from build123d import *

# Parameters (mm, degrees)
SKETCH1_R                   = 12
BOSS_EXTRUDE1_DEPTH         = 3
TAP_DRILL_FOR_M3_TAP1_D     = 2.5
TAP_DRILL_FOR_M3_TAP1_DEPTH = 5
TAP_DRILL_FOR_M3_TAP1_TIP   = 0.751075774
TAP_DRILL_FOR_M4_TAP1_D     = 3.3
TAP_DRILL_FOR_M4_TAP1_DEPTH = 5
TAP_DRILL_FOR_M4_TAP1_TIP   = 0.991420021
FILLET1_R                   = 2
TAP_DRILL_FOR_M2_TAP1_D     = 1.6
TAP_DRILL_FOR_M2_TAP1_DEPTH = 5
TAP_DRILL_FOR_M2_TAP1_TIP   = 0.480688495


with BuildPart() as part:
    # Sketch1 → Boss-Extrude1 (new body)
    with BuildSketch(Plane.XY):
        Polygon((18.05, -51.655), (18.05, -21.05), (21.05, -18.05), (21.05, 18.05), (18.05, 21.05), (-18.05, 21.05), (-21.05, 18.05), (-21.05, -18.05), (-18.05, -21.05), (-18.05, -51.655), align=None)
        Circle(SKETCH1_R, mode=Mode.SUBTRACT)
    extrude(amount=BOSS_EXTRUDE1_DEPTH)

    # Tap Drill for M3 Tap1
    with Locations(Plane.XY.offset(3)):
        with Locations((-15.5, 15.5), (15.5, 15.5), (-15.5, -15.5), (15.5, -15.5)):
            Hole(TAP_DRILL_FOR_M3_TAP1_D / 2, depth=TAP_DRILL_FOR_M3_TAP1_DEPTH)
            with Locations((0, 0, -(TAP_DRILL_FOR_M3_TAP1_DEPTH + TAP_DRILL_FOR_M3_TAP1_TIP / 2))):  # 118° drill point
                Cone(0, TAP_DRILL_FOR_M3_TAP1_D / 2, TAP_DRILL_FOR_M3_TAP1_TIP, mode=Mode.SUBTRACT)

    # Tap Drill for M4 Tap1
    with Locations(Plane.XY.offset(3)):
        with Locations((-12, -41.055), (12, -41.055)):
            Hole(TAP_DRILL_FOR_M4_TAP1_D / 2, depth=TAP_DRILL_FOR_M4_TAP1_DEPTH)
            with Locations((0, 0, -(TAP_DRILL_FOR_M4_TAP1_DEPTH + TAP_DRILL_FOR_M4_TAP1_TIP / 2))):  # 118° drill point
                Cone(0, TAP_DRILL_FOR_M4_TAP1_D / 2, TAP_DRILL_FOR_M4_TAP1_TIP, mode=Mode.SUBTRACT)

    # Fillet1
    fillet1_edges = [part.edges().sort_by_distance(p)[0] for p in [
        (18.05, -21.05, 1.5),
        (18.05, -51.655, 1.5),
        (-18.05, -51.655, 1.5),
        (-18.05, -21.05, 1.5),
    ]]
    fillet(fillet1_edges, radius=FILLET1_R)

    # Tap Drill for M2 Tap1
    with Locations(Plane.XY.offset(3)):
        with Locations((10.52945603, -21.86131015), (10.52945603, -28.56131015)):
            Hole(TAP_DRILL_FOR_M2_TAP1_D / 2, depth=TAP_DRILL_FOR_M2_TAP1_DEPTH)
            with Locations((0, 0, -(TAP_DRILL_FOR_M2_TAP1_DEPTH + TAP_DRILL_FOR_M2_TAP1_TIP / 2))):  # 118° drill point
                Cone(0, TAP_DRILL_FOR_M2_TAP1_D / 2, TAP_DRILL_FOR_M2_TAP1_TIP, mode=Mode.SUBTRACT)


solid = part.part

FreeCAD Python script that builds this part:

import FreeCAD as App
import Part
import Sketcher

V = App.Vector


def edges_at(feature, points):
    """Names of the edges that pass closest to the given points."""
    edges = feature.Shape.Edges
    near = lambda p: min(range(len(edges)), key=lambda i: edges[i].distToShape(Part.Vertex(*p))[0])
    return sorted({f"Edge{near(p) + 1}" for p in points})


def add_polygon(sketch, points):
    """Adds a closed chain of lines whose ends are joined by coincident constraints."""
    first, n = sketch.GeometryCount, len(points)
    for a, b in zip(points, points[1:] + points[:1]):
        sketch.addGeometry(Part.LineSegment(App.Vector(*a, 0), App.Vector(*b, 0)), False)
    for i in range(n):
        sketch.addConstraint(Sketcher.Constraint("Coincident", first + i, 2, first + (i + 1) % n, 1))

doc = App.newDocument("Part")
body = doc.addObject("PartDesign::Body", "Body")

# Sketch on XY plane
sketch1 = body.newObject("Sketcher::SketchObject", "Sketch")
sketch1.AttachmentSupport = (doc.getObject("XY_Plane"), [""])
sketch1.MapMode = "FlatFace"
add_polygon(sketch1, [(18.1, -51.7), (18.1, -21.1), (21.1, -18.1), (21.1, 18.1), (18.1, 21.1), (-18.1, 21.1), (-21.1, 18.1), (-21.1, -18.1), (-18.1, -21.1), (-18.1, -51.7)])  # lines 0-9
sketch1.addGeometry(Part.Circle(V(0, 0, 0), V(0, 0, 1), 12), False)  # 10
sketch1.addConstraint(Sketcher.Constraint("Vertical", 0))
sketch1.addConstraint(Sketcher.Constraint("Vertical", 2))
sketch1.addConstraint(Sketcher.Constraint("Horizontal", 4))
sketch1.addConstraint(Sketcher.Constraint("Vertical", 6))
sketch1.addConstraint(Sketcher.Constraint("Vertical", 8))
sketch1.addConstraint(Sketcher.Constraint("Horizontal", 9))
sketch1.addConstraint(Sketcher.Constraint("Coincident", 10, 3, -1, 1))
sketch1.addConstraint(Sketcher.Constraint("Symmetric", 0, 2, 4, 2, -1, 1))
sketch1.addConstraint(Sketcher.Constraint("Symmetric", 1, 2, 5, 2, -1, 1))
sketch1.addConstraint(Sketcher.Constraint("Symmetric", 3, 2, 7, 2, -1, 1))
sketch1.addConstraint(Sketcher.Constraint("Perpendicular", 1, 3))
sketch1.addConstraint(Sketcher.Constraint("Perpendicular", 5, 7))
sketch1.addConstraint(Sketcher.Constraint("Horizontal", 2, 2, 5, 2))
sketch1.addConstraint(Sketcher.Constraint("Vertical", 0, 2, 3, 2))
sketch1.addConstraint(Sketcher.Constraint("Equal", 9, 2))
sketch1.addConstraint(Sketcher.Constraint("Diameter", 10, 24.0))
sketch1.addConstraint(Sketcher.Constraint("DistanceX", 4, 2, 4, 1, 36.1))
sketch1.addConstraint(Sketcher.Constraint("DistanceX", 0, 2, 1, 2, 3.0))
sketch1.addConstraint(Sketcher.Constraint("DistanceY", 0, 1, 0, 2, 30.605))
pad1 = body.newObject("PartDesign::Pad", "Pad")
pad1.Profile = sketch1
pad1.Length = 3

# Sketch on XY plane
sketch2 = body.newObject("Sketcher::SketchObject", "Sketch001")
sketch2.AttachmentSupport = (doc.getObject("XY_Plane"), [""])
sketch2.MapMode = "FlatFace"
sketch2.AttachmentOffset = App.Placement(V(0, 0, 3), App.Rotation())
sketch2.addGeometry(Part.Circle(V(-15.5, 15.5, 0), V(0, 0, 1), 1.2), False)
sketch2.addGeometry(Part.Circle(V(15.5, 15.5, 0), V(0, 0, 1), 1.2), False)
sketch2.addGeometry(Part.Circle(V(-15.5, -15.5, 0), V(0, 0, 1), 1.2), False)
sketch2.addGeometry(Part.Circle(V(15.5, -15.5, 0), V(0, 0, 1), 1.2), False)
sketch2.addConstraint(Sketcher.Constraint("Equal", 0, 1))
sketch2.addConstraint(Sketcher.Constraint("Equal", 1, 2))
sketch2.addConstraint(Sketcher.Constraint("Equal", 2, 3))
sketch2.addConstraint(Sketcher.Constraint("Symmetric", 1, 3, 2, 3, -1, 1))
sketch2.addConstraint(Sketcher.Constraint("Symmetric", 0, 3, 3, 3, -1, 1))
sketch2.addConstraint(Sketcher.Constraint("Symmetric", 0, 3, 1, 3, -2))
sketch2.addConstraint(Sketcher.Constraint("Diameter", 0, 2.5))
sketch2.addConstraint(Sketcher.Constraint("DistanceX", 0, 3, 1, 3, 31.0))
sketch2.addConstraint(Sketcher.Constraint("DistanceY", 2, 3, 0, 3, 31.0))
doc.recompute()
hole = body.newObject("PartDesign::Hole", "Hole")
hole.Profile = sketch2
hole.ThreadType = "None"
hole.Diameter = 2.5
hole.DepthType = "Dimension"
hole.Depth = 5
hole.DrillPoint = "Angled"
hole.DrillPointAngle = 118

# Sketch on XY plane
sketch3 = body.newObject("Sketcher::SketchObject", "Sketch002")
sketch3.AttachmentSupport = (doc.getObject("XY_Plane"), [""])
sketch3.MapMode = "FlatFace"
sketch3.AttachmentOffset = App.Placement(V(0, 0, 3), App.Rotation())
sketch3.addGeometry(Part.Circle(V(-12, -41.1, 0), V(0, 0, 1), 1.6), False)
sketch3.addGeometry(Part.Circle(V(12, -41.1, 0), V(0, 0, 1), 1.6), False)
sketch3.addConstraint(Sketcher.Constraint("Equal", 0, 1))
sketch3.addConstraint(Sketcher.Constraint("Symmetric", 0, 3, 1, 3, -2))
sketch3.addConstraint(Sketcher.Constraint("Diameter", 0, 3.3))
sketch3.addConstraint(Sketcher.Constraint("DistanceX", 0, 3, -1, 1, 12.0))
sketch3.addConstraint(Sketcher.Constraint("DistanceY", 0, 3, -1, 1, 41.055))
doc.recompute()
hole2 = body.newObject("PartDesign::Hole", "Hole001")
hole2.Profile = sketch3
hole2.ThreadType = "None"
hole2.Diameter = 3.3
hole2.DepthType = "Dimension"
hole2.Depth = 5
hole2.DrillPoint = "Angled"
hole2.DrillPointAngle = 118
doc.recompute()

fillet = body.newObject("PartDesign::Fillet", "Fillet")
fillet.Base = (hole2, edges_at(hole2, [
    (18.05, -21.05, 1.5),
    (18.05, -51.655, 1.5),
    (-18.05, -51.655, 1.5),
    (-18.05, -21.05, 1.5),
]))
fillet.Radius = 2

# Sketch on XY plane
sketch4 = body.newObject("Sketcher::SketchObject", "Sketch003")
sketch4.AttachmentSupport = (doc.getObject("XY_Plane"), [""])
sketch4.MapMode = "FlatFace"
sketch4.AttachmentOffset = App.Placement(V(0, 0, 3), App.Rotation())
sketch4.addGeometry(Part.Circle(V(10.5, -21.9, 0), V(0, 0, 1), 0.8), False)
sketch4.addGeometry(Part.Circle(V(10.5, -28.6, 0), V(0, 0, 1), 0.8), False)
sketch4.addConstraint(Sketcher.Constraint("Equal", 0, 1))
sketch4.addConstraint(Sketcher.Constraint("Vertical", 0, 3, 1, 3))
sketch4.addConstraint(Sketcher.Constraint("Diameter", 0, 1.6))
sketch4.addConstraint(Sketcher.Constraint("DistanceY", 1, 3, 0, 3, 6.7))
sketch4.addConstraint(Sketcher.Constraint("DistanceY", 0, 3, -1, 1, 21.86131))
sketch4.addConstraint(Sketcher.Constraint("DistanceX", -1, 1, 0, 3, 10.529456))
doc.recompute()
hole3 = body.newObject("PartDesign::Hole", "Hole002")
hole3.Profile = sketch4
hole3.ThreadType = "None"
hole3.Diameter = 1.6
hole3.DepthType = "Dimension"
hole3.Depth = 5
hole3.DrillPoint = "Angled"
hole3.DrillPointAngle = 118

doc.recompute()
